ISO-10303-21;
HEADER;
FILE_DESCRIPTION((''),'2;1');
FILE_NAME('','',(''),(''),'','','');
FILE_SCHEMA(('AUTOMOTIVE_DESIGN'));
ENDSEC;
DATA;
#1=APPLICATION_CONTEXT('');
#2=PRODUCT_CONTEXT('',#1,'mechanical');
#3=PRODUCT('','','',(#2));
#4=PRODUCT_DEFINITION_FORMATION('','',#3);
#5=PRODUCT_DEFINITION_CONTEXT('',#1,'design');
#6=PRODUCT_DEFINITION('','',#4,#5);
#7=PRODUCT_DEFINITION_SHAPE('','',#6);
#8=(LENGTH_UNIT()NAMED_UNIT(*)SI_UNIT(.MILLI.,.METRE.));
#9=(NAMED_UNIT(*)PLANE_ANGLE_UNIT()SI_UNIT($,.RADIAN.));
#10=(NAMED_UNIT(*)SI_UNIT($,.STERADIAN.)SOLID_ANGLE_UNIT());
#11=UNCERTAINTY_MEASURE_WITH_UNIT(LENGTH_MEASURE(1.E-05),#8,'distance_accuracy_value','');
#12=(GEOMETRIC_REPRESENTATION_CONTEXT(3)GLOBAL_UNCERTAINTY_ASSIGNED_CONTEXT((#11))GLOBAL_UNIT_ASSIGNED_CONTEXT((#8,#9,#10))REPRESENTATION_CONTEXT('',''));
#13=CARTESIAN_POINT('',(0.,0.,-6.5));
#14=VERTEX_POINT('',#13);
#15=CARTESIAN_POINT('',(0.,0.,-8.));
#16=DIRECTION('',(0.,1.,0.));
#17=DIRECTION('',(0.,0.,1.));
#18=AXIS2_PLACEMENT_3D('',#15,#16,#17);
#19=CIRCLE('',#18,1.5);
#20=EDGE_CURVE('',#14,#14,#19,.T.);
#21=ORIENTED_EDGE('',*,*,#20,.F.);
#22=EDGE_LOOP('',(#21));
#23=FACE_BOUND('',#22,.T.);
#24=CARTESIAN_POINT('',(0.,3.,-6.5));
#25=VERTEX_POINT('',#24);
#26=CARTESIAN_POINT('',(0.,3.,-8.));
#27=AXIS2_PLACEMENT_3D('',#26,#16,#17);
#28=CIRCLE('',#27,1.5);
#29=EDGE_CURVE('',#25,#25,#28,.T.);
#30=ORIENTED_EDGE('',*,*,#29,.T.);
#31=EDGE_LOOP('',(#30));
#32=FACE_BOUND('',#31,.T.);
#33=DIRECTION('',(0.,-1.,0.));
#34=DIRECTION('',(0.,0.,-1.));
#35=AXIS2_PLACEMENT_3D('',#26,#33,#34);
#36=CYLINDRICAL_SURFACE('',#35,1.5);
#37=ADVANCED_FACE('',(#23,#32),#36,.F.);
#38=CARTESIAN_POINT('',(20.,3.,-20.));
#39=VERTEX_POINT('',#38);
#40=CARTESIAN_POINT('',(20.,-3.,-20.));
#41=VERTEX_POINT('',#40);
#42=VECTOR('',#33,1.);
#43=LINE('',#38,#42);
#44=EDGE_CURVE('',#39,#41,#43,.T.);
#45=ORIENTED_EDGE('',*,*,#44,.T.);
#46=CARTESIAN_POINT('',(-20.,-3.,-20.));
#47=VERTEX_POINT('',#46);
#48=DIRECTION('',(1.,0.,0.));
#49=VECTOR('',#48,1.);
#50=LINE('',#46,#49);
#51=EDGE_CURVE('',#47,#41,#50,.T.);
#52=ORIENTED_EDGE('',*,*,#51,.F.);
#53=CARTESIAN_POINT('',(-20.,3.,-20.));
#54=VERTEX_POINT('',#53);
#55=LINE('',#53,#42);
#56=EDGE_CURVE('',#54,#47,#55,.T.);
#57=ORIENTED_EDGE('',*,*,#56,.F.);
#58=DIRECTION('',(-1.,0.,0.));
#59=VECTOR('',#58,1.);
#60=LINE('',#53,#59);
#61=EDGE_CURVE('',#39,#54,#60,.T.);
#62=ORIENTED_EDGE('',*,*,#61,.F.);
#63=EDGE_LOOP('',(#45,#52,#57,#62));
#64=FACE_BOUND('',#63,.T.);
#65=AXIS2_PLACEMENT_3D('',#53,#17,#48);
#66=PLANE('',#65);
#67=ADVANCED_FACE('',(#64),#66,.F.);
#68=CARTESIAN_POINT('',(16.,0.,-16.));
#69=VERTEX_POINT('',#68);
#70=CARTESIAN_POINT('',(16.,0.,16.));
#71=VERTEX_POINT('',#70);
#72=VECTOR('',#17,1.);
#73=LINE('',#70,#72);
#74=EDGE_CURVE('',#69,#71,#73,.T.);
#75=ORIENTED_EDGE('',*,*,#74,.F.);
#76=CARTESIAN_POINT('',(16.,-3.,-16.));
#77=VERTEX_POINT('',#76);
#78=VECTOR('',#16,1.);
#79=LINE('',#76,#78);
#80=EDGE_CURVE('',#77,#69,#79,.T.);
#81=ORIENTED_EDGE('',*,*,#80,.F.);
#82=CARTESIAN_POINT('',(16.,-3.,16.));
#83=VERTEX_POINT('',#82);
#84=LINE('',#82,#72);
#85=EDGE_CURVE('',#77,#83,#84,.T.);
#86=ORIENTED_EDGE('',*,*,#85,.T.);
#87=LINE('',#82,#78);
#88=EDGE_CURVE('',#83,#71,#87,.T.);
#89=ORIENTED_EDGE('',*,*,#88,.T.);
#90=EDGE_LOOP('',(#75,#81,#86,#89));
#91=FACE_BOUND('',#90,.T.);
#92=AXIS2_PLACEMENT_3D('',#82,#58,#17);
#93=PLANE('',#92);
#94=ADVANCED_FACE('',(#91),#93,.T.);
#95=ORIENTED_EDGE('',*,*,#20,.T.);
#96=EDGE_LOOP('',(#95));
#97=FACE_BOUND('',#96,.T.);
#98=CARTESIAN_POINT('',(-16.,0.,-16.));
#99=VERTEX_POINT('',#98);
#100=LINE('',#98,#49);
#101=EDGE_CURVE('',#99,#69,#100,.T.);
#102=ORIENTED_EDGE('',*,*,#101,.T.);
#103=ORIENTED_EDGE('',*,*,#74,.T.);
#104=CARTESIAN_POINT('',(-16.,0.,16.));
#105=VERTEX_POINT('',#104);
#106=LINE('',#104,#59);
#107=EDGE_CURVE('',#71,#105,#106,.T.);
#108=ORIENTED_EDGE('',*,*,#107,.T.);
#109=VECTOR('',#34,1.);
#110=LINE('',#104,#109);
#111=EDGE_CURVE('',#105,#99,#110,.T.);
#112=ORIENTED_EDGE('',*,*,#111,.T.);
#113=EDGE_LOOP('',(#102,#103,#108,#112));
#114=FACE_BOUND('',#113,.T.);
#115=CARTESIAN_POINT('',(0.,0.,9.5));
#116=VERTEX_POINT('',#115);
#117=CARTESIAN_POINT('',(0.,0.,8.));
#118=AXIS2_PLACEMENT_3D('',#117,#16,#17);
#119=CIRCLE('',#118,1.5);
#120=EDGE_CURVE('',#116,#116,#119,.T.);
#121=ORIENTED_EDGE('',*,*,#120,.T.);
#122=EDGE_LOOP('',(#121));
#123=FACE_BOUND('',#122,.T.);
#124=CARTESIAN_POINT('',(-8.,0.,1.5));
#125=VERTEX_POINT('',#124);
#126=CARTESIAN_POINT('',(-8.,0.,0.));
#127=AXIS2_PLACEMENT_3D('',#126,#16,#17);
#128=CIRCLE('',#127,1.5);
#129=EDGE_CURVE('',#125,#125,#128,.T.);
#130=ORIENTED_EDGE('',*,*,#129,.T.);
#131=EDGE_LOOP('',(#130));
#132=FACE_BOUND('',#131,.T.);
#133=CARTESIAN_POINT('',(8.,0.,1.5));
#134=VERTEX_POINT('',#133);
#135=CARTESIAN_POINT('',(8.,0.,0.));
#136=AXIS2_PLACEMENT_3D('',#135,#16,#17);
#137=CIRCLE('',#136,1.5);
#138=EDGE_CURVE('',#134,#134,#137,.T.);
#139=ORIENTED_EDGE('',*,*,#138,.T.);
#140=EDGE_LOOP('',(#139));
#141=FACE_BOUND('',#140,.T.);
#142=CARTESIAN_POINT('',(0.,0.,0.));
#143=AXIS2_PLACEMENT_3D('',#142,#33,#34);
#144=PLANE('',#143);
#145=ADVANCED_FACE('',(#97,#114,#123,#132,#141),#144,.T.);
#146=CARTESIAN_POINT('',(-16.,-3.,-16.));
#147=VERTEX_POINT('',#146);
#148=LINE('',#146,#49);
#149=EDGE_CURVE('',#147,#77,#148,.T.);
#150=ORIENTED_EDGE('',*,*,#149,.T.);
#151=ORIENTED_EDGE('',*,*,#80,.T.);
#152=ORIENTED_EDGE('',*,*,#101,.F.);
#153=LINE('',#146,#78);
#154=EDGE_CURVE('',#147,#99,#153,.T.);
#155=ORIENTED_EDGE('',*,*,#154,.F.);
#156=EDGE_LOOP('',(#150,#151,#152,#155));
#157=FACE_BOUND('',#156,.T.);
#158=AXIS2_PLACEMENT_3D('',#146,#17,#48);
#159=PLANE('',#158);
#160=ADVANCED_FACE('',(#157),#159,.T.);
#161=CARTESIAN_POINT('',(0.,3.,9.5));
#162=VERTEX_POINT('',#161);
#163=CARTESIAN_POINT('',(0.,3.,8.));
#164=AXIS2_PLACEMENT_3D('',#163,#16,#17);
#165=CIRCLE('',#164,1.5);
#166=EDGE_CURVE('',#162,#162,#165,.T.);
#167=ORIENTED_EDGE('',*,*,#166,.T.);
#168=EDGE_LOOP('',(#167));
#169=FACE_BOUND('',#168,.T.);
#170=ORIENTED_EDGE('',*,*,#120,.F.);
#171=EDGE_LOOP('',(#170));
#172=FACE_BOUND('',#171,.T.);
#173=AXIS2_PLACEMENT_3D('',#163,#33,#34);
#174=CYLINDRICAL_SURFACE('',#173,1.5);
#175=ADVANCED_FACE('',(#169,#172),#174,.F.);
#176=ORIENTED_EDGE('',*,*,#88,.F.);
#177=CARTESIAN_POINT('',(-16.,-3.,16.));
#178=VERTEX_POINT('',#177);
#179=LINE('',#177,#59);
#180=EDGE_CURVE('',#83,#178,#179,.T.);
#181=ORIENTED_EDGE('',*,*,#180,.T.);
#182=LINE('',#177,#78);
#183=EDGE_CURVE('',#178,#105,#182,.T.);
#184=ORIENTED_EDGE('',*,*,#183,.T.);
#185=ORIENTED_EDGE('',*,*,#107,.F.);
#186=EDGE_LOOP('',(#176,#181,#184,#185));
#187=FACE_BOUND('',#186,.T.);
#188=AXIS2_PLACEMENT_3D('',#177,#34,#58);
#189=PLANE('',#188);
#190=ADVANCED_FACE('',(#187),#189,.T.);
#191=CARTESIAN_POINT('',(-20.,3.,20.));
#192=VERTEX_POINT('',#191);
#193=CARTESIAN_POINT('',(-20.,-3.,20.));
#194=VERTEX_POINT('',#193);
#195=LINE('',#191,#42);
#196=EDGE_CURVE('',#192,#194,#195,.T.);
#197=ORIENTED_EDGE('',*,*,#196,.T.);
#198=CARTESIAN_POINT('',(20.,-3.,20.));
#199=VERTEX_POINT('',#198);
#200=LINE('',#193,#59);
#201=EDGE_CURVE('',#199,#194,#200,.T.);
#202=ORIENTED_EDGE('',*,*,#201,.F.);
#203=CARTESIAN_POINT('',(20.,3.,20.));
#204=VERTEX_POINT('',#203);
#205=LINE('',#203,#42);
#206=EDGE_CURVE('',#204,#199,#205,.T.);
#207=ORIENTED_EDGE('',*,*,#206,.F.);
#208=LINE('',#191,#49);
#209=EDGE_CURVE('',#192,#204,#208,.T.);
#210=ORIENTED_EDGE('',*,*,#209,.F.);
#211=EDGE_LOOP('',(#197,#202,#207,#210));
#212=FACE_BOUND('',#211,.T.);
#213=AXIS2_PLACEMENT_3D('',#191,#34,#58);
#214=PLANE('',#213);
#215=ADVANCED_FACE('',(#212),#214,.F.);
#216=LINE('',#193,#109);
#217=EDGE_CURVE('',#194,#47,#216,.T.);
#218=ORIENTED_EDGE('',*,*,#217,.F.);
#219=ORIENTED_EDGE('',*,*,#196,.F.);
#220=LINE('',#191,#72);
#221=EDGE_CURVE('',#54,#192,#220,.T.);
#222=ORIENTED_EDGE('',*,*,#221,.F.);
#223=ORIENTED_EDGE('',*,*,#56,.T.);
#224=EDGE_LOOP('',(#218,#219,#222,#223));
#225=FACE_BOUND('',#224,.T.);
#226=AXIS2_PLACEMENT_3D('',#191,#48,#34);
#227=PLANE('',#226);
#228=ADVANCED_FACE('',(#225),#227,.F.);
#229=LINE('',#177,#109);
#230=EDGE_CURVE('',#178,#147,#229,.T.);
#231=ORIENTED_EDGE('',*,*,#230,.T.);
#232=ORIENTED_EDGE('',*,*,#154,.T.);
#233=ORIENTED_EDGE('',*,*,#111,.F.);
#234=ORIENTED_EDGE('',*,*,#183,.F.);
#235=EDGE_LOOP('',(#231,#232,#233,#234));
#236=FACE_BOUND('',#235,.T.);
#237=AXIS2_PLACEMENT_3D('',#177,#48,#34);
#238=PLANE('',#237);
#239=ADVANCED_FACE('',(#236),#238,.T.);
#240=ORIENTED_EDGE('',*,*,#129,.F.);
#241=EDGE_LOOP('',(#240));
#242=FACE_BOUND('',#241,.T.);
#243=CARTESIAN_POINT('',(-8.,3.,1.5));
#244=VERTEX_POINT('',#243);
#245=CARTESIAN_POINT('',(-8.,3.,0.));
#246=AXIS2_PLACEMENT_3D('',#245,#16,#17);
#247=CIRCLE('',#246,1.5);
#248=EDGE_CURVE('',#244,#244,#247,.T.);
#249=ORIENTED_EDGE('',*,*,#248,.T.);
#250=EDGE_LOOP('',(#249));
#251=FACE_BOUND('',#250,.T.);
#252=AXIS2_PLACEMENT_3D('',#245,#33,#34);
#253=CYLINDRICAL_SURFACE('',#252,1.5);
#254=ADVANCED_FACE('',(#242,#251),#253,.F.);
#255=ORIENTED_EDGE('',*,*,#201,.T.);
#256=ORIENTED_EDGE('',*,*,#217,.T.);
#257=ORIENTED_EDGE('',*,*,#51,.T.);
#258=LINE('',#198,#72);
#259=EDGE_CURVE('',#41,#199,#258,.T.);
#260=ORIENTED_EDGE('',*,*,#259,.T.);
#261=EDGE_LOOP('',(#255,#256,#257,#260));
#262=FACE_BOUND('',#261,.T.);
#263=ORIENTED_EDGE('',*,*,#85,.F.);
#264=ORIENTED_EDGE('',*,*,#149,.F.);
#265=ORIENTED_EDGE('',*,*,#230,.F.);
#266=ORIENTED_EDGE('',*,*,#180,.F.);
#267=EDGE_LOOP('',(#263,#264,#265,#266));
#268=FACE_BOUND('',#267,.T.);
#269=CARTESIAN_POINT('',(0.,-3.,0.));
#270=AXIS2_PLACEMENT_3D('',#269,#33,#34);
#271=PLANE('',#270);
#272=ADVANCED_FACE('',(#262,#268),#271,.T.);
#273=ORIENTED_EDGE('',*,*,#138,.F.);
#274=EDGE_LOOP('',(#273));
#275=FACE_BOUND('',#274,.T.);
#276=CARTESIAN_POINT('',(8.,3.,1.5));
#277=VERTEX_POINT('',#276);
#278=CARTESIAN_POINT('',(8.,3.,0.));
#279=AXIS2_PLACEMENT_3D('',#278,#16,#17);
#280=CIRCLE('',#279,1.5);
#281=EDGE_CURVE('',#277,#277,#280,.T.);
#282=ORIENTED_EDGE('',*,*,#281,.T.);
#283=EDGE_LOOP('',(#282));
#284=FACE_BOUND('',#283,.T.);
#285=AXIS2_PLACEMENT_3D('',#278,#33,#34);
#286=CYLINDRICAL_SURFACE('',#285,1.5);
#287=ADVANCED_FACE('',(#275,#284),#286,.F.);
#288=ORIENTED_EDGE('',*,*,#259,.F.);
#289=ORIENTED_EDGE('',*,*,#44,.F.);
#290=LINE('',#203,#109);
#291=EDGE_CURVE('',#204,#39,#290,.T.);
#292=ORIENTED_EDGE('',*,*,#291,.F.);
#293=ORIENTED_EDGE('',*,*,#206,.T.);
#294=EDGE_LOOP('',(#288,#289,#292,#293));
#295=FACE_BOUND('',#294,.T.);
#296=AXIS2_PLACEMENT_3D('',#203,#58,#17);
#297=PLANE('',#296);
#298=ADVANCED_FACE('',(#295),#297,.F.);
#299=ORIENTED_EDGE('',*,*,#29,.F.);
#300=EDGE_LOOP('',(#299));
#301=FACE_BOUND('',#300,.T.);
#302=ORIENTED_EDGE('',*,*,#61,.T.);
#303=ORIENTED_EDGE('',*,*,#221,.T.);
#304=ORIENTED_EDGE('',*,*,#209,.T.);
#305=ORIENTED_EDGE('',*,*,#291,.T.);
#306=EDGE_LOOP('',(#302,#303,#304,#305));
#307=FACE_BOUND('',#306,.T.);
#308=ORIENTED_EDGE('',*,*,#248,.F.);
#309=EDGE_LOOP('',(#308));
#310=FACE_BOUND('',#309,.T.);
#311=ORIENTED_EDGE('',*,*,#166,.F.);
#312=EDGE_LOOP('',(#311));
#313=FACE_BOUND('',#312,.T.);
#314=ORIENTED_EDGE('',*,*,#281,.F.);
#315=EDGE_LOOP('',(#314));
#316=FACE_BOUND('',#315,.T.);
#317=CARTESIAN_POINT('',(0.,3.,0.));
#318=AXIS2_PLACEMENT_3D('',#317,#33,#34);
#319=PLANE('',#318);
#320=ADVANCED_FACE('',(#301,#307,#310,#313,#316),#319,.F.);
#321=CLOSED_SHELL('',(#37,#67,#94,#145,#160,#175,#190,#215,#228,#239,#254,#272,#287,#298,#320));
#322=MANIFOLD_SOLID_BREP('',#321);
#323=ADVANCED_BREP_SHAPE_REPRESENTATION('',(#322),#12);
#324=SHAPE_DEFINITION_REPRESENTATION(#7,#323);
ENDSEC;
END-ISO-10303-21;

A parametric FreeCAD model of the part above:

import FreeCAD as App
import Part
import Sketcher
from FreeCAD import Vector


def add_polygon(sketch, points):
    """Adds a closed chain of lines whose ends are joined by coincident constraints."""
    first, n = sketch.GeometryCount, len(points)
    for a, b in zip(points, points[1:] + points[:1]):
        sketch.addGeometry(Part.LineSegment(App.Vector(*a, 0), App.Vector(*b, 0)), False)
    for i in range(n):
        sketch.addConstraint(Sketcher.Constraint("Coincident", first + i, 2, first + (i + 1) % n, 1))

doc = App.newDocument("Part")
body = doc.addObject("PartDesign::Body", "Body")

# Sketch on XZ plane
sketch1 = body.newObject("Sketcher::SketchObject", "Sketch")
sketch1.AttachmentSupport = (doc.getObject("XZ_Plane"), [""])
sketch1.MapMode = "FlatFace"
add_polygon(sketch1, [(-20, -20), (-20, 20), (20, 20), (20, -20)])  # lines 0-3
sketch1.addGeometry(Part.Circle(Vector(0, 8, 0), Vector(0, 0, 1), 1.5), False)  # 4
sketch1.addGeometry(Part.Circle(Vector(-8, 0, 0), Vector(0, 0, 1), 1.5), False)  # 5
sketch1.addGeometry(Part.Circle(Vector(8, 0, 0), Vector(0, 0, 1), 1.5), False)  # 6
sketch1.addGeometry(Part.Circle(Vector(0, -8, 0), Vector(0, 0, 1), 1.5), False)  # 7
sketch1.addConstraint([
    Sketcher.Constraint("Vertical", 0),
    Sketcher.Constraint("Horizontal", 1),
    Sketcher.Constraint("Vertical", 2),
    Sketcher.Constraint("Horizontal", 3),
    Sketcher.Constraint("Equal", 4, 5),
    Sketcher.Constraint("Equal", 5, 6),
    Sketcher.Constraint("Equal", 6, 7),
    Sketcher.Constraint("Symmetric", 5, 3, 6, 3, -1, 1),
    Sketcher.Constraint("Symmetric", 4, 3, 7, 3, -1, 1),
    Sketcher.Constraint("Symmetric", 0, 2, 2, 2, -1, 1),
    Sketcher.Constraint("PointOnObject", 4, 3, -2),
    Sketcher.Constraint("PointOnObject", 5, 3, -1),
    Sketcher.Constraint("Equal", 3, 0),
    Sketcher.Constraint("Diameter", 4, 3.0),
    Sketcher.Constraint("DistanceX", 1, 1, 1, 2, 40.0),
    Sketcher.Constraint("DistanceY", -1, 1, 4, 3, 8.0),
    Sketcher.Constraint("DistanceX", 5, 3, -1, 1, 8.0),
])
pad1 = body.newObject("PartDesign::Pad", "Pad")
pad1.Profile = sketch1
pad1.Length = 3
pad1.Reversed = True

# Sketch on XZ plane
sketch2 = body.newObject("Sketcher::SketchObject", "Sketch001")
sketch2.AttachmentSupport = (doc.getObject("XZ_Plane"), [""])
sketch2.MapMode = "FlatFace"
add_polygon(sketch2, [(-20, 20), (-20, -20), (20, -20), (20, 20)])  # lines 0-3
add_polygon(sketch2, [(16, -16), (-16, -16), (-16, 16), (16, 16)])  # lines 4-7
sketch2.addConstraint([
    Sketcher.Constraint("Vertical", 0),
    Sketcher.Constraint("Horizontal", 1),
    Sketcher.Constraint("Vertical", 2),
    Sketcher.Constraint("Horizontal", 3),
    Sketcher.Constraint("Horizontal", 4),
    Sketcher.Constraint("Vertical", 5),
    Sketcher.Constraint("Horizontal", 6),
    Sketcher.Constraint("Vertical", 7),
    Sketcher.Constraint("Symmetric", 0, 2, 2, 2, -1, 1),
    Sketcher.Constraint("Symmetric", 4, 2, 6, 2, -1, 1),
    Sketcher.Constraint("Equal", 3, 0),
    Sketcher.Constraint("Equal", 6, 5),
    Sketcher.Constraint("DistanceX", 1, 1, 1, 2, 40.0),
    Sketcher.Constraint("DistanceX", 4, 2, 4, 1, 32.0),
])
pad2 = body.newObject("PartDesign::Pad", "Pad001")
pad2.Profile = sketch2
pad2.Length = 3

doc.recompute()
